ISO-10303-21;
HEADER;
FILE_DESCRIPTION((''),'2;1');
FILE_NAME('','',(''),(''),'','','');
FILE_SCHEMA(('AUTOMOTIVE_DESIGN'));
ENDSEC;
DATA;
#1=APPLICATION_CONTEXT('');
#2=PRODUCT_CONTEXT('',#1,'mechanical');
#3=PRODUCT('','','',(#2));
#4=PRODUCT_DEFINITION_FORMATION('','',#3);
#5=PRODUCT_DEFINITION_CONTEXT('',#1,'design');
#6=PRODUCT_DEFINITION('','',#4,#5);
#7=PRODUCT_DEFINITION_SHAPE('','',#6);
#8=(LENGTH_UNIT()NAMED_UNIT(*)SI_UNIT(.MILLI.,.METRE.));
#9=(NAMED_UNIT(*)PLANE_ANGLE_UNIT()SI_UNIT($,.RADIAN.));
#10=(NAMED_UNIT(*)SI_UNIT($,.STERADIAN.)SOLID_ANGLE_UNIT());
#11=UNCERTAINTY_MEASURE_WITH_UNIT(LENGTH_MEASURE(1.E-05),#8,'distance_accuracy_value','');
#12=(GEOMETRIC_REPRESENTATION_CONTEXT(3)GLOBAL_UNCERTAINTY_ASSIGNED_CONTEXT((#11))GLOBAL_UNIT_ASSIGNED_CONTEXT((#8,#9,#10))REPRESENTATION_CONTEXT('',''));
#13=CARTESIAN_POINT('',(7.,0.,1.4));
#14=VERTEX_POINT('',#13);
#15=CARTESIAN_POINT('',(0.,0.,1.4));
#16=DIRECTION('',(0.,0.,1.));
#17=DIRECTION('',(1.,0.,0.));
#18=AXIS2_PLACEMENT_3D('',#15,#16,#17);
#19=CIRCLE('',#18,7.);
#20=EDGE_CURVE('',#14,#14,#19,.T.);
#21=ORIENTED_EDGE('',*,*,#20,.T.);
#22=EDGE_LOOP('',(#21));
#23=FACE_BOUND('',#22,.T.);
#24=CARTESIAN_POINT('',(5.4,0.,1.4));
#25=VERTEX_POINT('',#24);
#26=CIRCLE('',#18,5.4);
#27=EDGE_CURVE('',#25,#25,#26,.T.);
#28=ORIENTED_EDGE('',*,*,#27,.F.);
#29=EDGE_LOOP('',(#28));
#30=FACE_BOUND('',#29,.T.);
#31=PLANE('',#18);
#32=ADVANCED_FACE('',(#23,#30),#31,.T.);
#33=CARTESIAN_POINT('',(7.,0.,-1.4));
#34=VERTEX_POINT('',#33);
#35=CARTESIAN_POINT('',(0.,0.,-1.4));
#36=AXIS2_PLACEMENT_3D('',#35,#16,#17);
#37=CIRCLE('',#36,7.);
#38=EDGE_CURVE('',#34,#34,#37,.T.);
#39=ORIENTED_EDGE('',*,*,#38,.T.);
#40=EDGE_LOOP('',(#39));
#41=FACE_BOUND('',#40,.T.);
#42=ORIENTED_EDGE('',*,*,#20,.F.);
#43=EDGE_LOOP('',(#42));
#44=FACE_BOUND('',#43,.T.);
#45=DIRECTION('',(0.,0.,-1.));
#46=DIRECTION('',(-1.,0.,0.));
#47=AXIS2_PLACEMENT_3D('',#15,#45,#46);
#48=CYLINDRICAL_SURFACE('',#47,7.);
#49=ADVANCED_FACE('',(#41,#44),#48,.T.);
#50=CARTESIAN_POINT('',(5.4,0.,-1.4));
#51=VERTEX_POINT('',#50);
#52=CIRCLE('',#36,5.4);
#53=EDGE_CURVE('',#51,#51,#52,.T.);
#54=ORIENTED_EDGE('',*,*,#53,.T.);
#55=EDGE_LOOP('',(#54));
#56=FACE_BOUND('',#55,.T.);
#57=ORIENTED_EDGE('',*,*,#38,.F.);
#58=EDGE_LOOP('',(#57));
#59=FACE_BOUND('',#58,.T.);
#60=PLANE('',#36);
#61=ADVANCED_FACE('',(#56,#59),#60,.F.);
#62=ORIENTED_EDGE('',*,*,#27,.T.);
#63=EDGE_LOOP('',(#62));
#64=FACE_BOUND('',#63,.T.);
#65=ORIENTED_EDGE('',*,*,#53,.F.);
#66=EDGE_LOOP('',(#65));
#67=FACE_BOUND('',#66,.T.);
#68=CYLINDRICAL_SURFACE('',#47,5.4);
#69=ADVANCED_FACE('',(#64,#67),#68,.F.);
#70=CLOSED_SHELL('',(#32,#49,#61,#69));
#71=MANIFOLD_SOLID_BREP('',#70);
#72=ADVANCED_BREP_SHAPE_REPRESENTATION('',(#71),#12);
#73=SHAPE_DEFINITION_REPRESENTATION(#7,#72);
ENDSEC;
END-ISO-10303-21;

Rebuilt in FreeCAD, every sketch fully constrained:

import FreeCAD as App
import Part
import Sketcher
Q = App.Units.Quantity

doc = App.newDocument("Part")
body = doc.addObject("PartDesign::Body", "Body")

# Sketch on XY plane
sketch1 = doc.addObject("Sketcher::SketchObject", "Sketch")
body.addObject(sketch1)
sketch1.AttachmentSupport = (doc.XY_Plane, [""])
sketch1.MapMode = "FlatFace"
sketch1.addGeometry([
    Part.Circle(App.Vector(0, 0, 0), App.Vector(0, 0, 1), 7),
    Part.Circle(App.Vector(0, 0, 0), App.Vector(0, 0, 1), 5.4),
], False)
sketch1.addConstraint([
    Sketcher.Constraint("Coincident", 0, 3, -1, 1),
    Sketcher.Constraint("Coincident", 1, 3, -1, 1),
    Sketcher.Constraint("Diameter", 0, Q("14 mm")),
    Sketcher.Constraint("Diameter", 1, Q("10.8 mm")),
])
pad1 = doc.addObject("PartDesign::Pad", "Pad")
body.addObject(pad1)
pad1.Profile = sketch1
pad1.Length = 2.8
pad1.Midplane = True

doc.recompute()
